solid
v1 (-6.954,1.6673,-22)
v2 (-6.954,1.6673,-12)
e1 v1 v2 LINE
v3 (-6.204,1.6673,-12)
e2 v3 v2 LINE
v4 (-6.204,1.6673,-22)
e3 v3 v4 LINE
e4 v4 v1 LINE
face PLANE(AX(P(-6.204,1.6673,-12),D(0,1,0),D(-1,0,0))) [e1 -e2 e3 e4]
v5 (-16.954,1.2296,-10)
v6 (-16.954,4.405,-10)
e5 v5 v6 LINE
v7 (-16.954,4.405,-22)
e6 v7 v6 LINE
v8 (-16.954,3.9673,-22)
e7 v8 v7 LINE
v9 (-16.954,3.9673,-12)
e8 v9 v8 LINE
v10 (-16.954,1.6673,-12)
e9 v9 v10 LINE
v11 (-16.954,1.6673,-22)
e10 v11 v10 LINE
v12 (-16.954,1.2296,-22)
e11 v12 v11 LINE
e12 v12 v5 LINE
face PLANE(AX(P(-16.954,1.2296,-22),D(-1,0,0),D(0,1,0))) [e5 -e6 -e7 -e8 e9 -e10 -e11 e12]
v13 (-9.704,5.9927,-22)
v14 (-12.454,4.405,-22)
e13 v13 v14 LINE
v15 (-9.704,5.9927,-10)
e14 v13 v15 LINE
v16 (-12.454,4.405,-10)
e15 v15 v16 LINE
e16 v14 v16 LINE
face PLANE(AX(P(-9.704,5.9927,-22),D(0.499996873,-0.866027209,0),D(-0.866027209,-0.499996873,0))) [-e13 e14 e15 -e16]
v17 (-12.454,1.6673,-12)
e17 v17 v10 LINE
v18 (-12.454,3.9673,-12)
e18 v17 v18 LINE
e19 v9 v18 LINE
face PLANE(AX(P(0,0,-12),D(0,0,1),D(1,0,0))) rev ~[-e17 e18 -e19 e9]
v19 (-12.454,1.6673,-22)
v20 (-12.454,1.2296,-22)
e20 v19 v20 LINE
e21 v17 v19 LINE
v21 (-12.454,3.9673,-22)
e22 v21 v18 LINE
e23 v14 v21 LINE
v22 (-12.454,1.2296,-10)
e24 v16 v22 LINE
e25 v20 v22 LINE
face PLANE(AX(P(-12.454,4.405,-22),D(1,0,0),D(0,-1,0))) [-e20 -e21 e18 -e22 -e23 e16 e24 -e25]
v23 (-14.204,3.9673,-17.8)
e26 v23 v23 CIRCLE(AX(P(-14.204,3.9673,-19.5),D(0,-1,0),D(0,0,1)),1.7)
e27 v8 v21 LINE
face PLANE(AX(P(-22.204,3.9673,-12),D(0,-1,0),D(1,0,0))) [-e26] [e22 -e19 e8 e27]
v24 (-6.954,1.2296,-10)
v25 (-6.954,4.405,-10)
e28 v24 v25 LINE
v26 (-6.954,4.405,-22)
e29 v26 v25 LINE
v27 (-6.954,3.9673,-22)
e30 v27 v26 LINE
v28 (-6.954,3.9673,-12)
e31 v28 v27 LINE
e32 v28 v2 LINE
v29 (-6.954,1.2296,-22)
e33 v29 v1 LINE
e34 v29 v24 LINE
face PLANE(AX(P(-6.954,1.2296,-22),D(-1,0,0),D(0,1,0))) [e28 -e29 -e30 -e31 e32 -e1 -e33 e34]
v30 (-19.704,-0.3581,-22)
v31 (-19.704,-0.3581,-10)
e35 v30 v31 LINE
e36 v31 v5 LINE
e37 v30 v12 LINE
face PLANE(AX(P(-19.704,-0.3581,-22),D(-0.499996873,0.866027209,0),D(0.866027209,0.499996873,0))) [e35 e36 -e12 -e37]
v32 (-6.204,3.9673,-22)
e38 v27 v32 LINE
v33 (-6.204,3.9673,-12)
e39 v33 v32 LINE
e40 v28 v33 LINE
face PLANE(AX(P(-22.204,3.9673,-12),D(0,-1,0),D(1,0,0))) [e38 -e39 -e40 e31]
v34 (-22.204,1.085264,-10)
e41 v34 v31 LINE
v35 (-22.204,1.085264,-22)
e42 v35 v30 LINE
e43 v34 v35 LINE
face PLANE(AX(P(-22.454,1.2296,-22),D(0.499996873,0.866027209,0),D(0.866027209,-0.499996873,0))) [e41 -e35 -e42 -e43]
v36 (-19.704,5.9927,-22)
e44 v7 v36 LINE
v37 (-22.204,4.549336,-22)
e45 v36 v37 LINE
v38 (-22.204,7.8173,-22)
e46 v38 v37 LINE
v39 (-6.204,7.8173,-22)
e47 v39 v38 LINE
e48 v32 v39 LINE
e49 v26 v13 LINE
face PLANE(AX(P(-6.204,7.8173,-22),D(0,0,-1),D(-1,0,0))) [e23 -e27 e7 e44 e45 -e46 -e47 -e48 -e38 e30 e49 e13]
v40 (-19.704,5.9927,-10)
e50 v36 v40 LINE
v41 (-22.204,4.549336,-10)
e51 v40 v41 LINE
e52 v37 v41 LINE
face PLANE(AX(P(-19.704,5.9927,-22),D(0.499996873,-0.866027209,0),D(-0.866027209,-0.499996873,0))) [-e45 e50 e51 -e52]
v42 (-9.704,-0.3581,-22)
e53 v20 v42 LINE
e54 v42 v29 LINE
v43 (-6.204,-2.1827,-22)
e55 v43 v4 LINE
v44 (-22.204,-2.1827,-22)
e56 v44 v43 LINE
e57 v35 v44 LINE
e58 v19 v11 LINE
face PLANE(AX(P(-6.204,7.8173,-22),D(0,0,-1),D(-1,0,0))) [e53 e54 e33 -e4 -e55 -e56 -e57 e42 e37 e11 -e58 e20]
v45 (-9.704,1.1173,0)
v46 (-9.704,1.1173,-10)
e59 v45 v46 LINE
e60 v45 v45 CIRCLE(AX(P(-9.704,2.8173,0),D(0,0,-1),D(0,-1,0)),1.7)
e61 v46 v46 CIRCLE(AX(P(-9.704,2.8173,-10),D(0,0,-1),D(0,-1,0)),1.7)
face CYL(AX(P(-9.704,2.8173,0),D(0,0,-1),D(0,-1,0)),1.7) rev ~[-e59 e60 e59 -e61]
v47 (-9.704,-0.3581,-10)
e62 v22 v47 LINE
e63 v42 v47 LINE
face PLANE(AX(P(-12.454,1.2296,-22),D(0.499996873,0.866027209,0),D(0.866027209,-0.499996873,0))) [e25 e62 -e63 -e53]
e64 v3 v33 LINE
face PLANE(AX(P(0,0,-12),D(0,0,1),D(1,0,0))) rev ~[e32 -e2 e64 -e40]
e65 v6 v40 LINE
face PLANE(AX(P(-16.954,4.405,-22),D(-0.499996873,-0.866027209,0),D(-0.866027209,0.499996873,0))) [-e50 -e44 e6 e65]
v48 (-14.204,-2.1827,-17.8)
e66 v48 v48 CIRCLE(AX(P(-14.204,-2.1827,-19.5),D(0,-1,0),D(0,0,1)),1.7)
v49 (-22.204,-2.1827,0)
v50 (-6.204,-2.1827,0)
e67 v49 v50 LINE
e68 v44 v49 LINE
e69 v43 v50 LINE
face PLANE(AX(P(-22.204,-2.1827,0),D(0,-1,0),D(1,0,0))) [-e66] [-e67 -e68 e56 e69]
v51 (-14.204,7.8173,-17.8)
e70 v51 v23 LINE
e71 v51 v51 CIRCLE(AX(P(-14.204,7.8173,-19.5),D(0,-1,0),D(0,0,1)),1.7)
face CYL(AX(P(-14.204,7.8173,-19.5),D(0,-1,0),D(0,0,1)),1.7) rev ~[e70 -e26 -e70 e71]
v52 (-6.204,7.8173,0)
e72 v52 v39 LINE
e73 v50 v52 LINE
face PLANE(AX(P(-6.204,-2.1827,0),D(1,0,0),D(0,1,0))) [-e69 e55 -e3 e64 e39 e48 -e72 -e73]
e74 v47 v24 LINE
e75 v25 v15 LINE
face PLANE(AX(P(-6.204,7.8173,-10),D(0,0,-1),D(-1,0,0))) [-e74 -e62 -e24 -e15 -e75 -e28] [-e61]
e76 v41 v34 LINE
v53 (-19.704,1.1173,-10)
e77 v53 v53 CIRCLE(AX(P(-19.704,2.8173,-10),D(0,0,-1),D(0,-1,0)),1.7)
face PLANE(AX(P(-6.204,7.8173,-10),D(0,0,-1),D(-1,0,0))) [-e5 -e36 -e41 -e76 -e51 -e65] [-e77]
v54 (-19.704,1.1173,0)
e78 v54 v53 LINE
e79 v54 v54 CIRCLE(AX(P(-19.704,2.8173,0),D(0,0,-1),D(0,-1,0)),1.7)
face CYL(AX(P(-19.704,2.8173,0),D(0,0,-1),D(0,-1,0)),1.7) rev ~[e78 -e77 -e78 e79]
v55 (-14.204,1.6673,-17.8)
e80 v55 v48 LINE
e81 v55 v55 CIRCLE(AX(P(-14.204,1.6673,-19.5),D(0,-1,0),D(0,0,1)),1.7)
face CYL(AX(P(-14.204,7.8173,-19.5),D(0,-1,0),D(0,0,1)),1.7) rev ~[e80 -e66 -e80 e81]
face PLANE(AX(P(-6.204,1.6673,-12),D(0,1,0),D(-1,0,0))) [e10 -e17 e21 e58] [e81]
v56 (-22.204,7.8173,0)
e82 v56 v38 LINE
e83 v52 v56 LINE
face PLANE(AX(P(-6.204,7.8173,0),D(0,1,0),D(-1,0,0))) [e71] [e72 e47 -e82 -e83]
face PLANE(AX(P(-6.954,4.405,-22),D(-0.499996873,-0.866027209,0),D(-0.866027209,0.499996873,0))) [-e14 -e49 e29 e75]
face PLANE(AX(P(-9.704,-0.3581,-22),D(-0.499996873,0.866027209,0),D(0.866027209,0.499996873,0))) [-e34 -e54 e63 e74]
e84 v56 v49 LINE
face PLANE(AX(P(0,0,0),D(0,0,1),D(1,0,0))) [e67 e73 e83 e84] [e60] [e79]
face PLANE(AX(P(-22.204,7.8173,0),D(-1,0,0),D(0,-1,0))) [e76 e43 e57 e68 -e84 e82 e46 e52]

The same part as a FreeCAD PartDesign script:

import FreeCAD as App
import Part
import Sketcher
from FreeCAD import Vector
Q = App.Units.Quantity


def add_polygon(sketch, points):
    """Adds a closed chain of lines whose ends are joined by coincident constraints."""
    first, n = sketch.GeometryCount, len(points)
    for a, b in zip(points, points[1:] + points[:1]):
        sketch.addGeometry(Part.LineSegment(App.Vector(*a, 0), App.Vector(*b, 0)), False)
    for i in range(n):
        sketch.addConstraint(Sketcher.Constraint("Coincident", first + i, 2, first + (i + 1) % n, 1))

doc = App.newDocument("Part")
body = doc.addObject("PartDesign::Body", "Body")

# Sketch on XY plane
sketch1 = body.newObject("Sketcher::SketchObject", "Sketch")
sketch1.AttachmentSupport = (doc.getObject("XY_Plane"), [""])
sketch1.MapMode = "FlatFace"
add_polygon(sketch1, [(-22.204, 7.8173), (-22.204, -2.1827), (-6.204, -2.1827), (-6.204, 7.8173)])  # lines 0-3
sketch1.addConstraint(Sketcher.Constraint("Vertical", 0))
sketch1.addConstraint(Sketcher.Constraint("Horizontal", 1))
sketch1.addConstraint(Sketcher.Constraint("Vertical", 2))
sketch1.addConstraint(Sketcher.Constraint("Horizontal", 3))
sketch1.addConstraint(Sketcher.Constraint("DistanceY", 0, 2, 0, 1, 10.0))
sketch1.addConstraint(Sketcher.Constraint("DistanceX", 1, 1, 1, 2, 16.0))
sketch1.addConstraint(Sketcher.Constraint("DistanceX", 0, 2, -1, 1, 22.204))
sketch1.addConstraint(Sketcher.Constraint("DistanceY", 0, 2, -1, 1, 2.1827))
pad1 = body.newObject("PartDesign::Pad", "Pad")
pad1.Profile = sketch1
pad1.Length = 12
pad1.Reversed = True

# Sketch on XY plane
sketch2 = body.newObject("Sketcher::SketchObject", "Sketch001")
sketch2.AttachmentSupport = (doc.getObject("XY_Plane"), [""])
sketch2.MapMode = "FlatFace"
sketch2.addGeometry(Part.Circle(Vector(-9.704, 2.8173, 0), Vector(0, 0, 1), 1.7), False)
sketch2.addGeometry(Part.Circle(Vector(-19.704, 2.8173, 0), Vector(0, 0, 1), 1.7), False)
sketch2.addConstraint(Sketcher.Constraint("Equal", 0, 1))
sketch2.addConstraint(Sketcher.Constraint("Horizontal", 0, 3, 1, 3))
sketch2.addConstraint(Sketcher.Constraint("Diameter", 0, 3.4))
sketch2.addConstraint(Sketcher.Constraint("DistanceX", 1, 3, 0, 3, 10.0))
sketch2.addConstraint(Sketcher.Constraint("DistanceX", 0, 3, -1, 1, 9.704))
sketch2.addConstraint(Sketcher.Constraint("DistanceY", -1, 1, 0, 3, 2.8173))
doc.recompute()
hole = body.newObject("PartDesign::Hole", "Hole")
hole.Profile = sketch2
hole.ThreadType = "None"
hole.Diameter = 3.4
hole.DepthType = "ThroughAll"

# Sketch on XY plane
sketch3 = body.newObject("Sketcher::SketchObject", "Sketch002")
sketch3.AttachmentSupport = (doc.getObject("XY_Plane"), [""])
sketch3.MapMode = "FlatFace"
sketch3.AttachmentOffset = App.Placement(Vector(0, 0, -12), App.Rotation())
add_polygon(sketch3, [(-6.204, 1.6673), (-6.204, -2.1827), (-22.204, -2.1827), (-22.204, 1.6673)])  # lines 0-3
add_polygon(sketch3, [(-6.204, 7.8173), (-6.204, 3.9673), (-22.204, 3.9673), (-22.204, 7.8173)])  # lines 4-7
sketch3.addConstraint(Sketcher.Constraint("Vertical", 0))
sketch3.addConstraint(Sketcher.Constraint("Horizontal", 1))
sketch3.addConstraint(Sketcher.Constraint("Vertical", 2))
sketch3.addConstraint(Sketcher.Constraint("Horizontal", 3))
sketch3.addConstraint(Sketcher.Constraint("Vertical", 4))
sketch3.addConstraint(Sketcher.Constraint("Horizontal", 5))
sketch3.addConstraint(Sketcher.Constraint("Vertical", 6))
sketch3.addConstraint(Sketcher.Constraint("Horizontal", 7))
sketch3.addConstraint(Sketcher.Constraint("Vertical", 3, 2, 4, 2))
sketch3.addConstraint(Sketcher.Constraint("Vertical", 2, 2, 5, 2))
sketch3.addConstraint(Sketcher.Constraint("Equal", 2, 4))
sketch3.addConstraint(Sketcher.Constraint("DistanceY", 3, 2, 4, 2, 2.3))
sketch3.addConstraint(Sketcher.Constraint("DistanceX", 1, 2, 1, 1, 16.0))
sketch3.addConstraint(Sketcher.Constraint("DistanceY", 1, 2, 6, 2, 10.0))
sketch3.addConstraint(Sketcher.Constraint("DistanceX", 0, 2, -1, 1, 6.204))
sketch3.addConstraint(Sketcher.Constraint("DistanceY", 0, 2, -1, 1, 2.1827))
pad2 = body.newObject("PartDesign::Pad", "Pad001")
pad2.Profile = sketch3
pad2.Length = 10
pad2.Reversed = True

# Sketch on XY plane
sketch4 = body.newObject("Sketcher::SketchObject", "Sketch003")
sketch4.AttachmentSupport = (doc.getObject("XY_Plane"), [""])
sketch4.MapMode = "FlatFace"
sketch4.AttachmentOffset = App.Placement(Vector(0, 0, -22), App.Rotation())
add_polygon(sketch4, [(-22.454, 1.2296), (-22.454, 4.405), (-19.704, 5.9927), (-16.954, 4.405), (-16.954, 1.2296), (-19.704, -0.3581)])  # lines 0-5
add_polygon(sketch4, [(-12.454, 1.2296), (-12.454, 4.405), (-9.704, 5.9927), (-6.954, 4.405), (-6.954, 1.2296), (-9.704, -0.3581)])  # lines 6-11
sketch4.addConstraint(Sketcher.Constraint("Vertical", 0))
sketch4.addConstraint(Sketcher.Constraint("Vertical", 3))
sketch4.addConstraint(Sketcher.Constraint("Vertical", 6))
sketch4.addConstraint(Sketcher.Constraint("Vertical", 9))
sketch4.addConstraint(Sketcher.Constraint("Parallel", 1, 4))
sketch4.addConstraint(Sketcher.Constraint("Parallel", 2, 5))
sketch4.addConstraint(Sketcher.Constraint("Parallel", 4, 7))
sketch4.addConstraint(Sketcher.Constraint("Parallel", 5, 8))
sketch4.addConstraint(Sketcher.Constraint("Parallel", 7, 10))
sketch4.addConstraint(Sketcher.Constraint("Parallel", 8, 11))
sketch4.addConstraint(Sketcher.Constraint("Horizontal", 0, 2, 2, 2))
sketch4.addConstraint(Sketcher.Constraint("Horizontal", 3, 2, 5, 2))
sketch4.addConstraint(Sketcher.Constraint("Horizontal", 2, 2, 6, 2))
sketch4.addConstraint(Sketcher.Constraint("Horizontal", 1, 2, 7, 2))
sketch4.addConstraint(Sketcher.Constraint("Horizontal", 6, 2, 8, 2))
sketch4.addConstraint(Sketcher.Constraint("Horizontal", 5, 2, 9, 2))
sketch4.addConstraint(Sketcher.Constraint("Horizontal", 4, 2, 10, 2))
sketch4.addConstraint(Sketcher.Constraint("Vertical", 1, 2, 4, 2))
sketch4.addConstraint(Sketcher.Constraint("DistanceX", 0, 2, 2, 2, 5.5))
sketch4.addConstraint(Sketcher.Constraint("Angle", 1, Q("29.9998 deg")))
sketch4.addConstraint(Sketcher.Constraint("DistanceX", 0, 2, 6, 2, 10.0))
sketch4.addConstraint(Sketcher.Constraint("DistanceY", 0, 1, 0, 2, 3.1754))
sketch4.addConstraint(Sketcher.Constraint("DistanceX", 0, 2, -1, 1, 22.454))
sketch4.addConstraint(Sketcher.Constraint("DistanceY", -1, 1, 0, 2, 4.405))
pocket1 = body.newObject("PartDesign::Pocket", "Pocket")
pocket1.Profile = sketch4
pocket1.Length = 12
pocket1.Reversed = True

# Sketch on XZ plane
sketch5 = body.newObject("Sketcher::SketchObject", "Sketch004")
sketch5.AttachmentSupport = (doc.getObject("XZ_Plane"), [""])
sketch5.MapMode = "FlatFace"
sketch5.AttachmentOffset = App.Placement(Vector(0, 0, -7.8173), App.Rotation())
sketch5.addGeometry(Part.Circle(Vector(-14.204, -19.5, 0), Vector(0, 0, 1), 1.7), False)
sketch5.addConstraint(Sketcher.Constraint("Diameter", 0, 3.4))
sketch5.addConstraint(Sketcher.Constraint("DistanceY", 0, 3, -1, 1, 19.5))
sketch5.addConstraint(Sketcher.Constraint("DistanceX", 0, 3, -1, 1, 14.204))
doc.recompute()
hole2 = body.newObject("PartDesign::Hole", "Hole001")
hole2.Profile = sketch5
hole2.ThreadType = "None"
hole2.Diameter = 3.4
hole2.DepthType = "ThroughAll"
hole2.Reversed = True

doc.recompute()
